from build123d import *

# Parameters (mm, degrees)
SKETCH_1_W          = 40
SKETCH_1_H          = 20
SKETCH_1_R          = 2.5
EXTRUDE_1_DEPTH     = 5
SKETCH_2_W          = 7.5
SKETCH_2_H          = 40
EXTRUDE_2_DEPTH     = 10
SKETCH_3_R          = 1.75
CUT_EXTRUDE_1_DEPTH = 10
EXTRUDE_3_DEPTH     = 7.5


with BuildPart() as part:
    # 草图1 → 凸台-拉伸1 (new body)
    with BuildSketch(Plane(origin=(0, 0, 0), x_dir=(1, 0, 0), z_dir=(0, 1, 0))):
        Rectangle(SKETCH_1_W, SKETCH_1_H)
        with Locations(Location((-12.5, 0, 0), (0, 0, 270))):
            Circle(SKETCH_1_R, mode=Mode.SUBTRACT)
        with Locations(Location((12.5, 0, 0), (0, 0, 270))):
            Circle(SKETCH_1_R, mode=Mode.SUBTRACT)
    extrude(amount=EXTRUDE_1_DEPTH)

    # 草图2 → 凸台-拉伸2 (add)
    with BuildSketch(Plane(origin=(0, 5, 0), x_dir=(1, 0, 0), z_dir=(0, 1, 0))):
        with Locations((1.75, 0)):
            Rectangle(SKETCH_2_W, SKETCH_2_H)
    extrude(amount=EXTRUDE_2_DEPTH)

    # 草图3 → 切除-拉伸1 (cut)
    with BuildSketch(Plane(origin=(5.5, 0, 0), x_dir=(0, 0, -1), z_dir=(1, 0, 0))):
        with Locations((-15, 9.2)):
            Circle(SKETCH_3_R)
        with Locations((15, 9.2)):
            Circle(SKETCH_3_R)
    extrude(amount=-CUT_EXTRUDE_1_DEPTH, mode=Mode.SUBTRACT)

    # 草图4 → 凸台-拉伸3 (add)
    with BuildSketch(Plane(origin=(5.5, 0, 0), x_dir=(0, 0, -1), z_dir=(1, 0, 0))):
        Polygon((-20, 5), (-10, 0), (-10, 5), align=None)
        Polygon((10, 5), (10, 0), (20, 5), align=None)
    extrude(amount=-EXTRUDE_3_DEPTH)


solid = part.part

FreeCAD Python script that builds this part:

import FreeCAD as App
import Part
import Sketcher


def add_polygon(sketch, points):
    """Adds a closed chain of lines whose ends are joined by coincident constraints."""
    first, n = sketch.GeometryCount, len(points)
    for a, b in zip(points, points[1:] + points[:1]):
        sketch.addGeometry(Part.LineSegment(App.Vector(*a, 0), App.Vector(*b, 0)), False)
    for i in range(n):
        sketch.addConstraint(Sketcher.Constraint("Coincident", first + i, 2, first + (i + 1) % n, 1))

doc = App.newDocument("Part")
params = doc.addObject("Spreadsheet::Sheet", "Params")
for row, (alias, value) in enumerate([
    ("sketch1_diameter", "5 mm"),
    ("sketch1_width", "40 mm"),
    ("sketch1_height", "20 mm"),
    ("pad1_length", "5 mm"),
    ("sketch2_height", "40 mm"),
    ("sketch2_width", "7.5 mm"),
    ("pad2_length", "10 mm"),
    ("sketch3_diameter", "3.5 mm"),
    ("pocket1_length", "10 mm"),
    ("sketch4_width", "5 mm"),
    ("sketch4_height", "10 mm"),
    ("pad3_length", "7.5 mm"),
], start=1):
    params.set(f"A{row}", alias)
    params.set(f"B{row}", "=" + value)
    params.setAlias(f"B{row}", alias)

body = doc.addObject("PartDesign::Body", "Body")

# Sketch on XZ plane
sketch1 = body.newObject("Sketcher::SketchObject", "Sketch")
sketch1.AttachmentSupport = (doc.getObject("XZ_Plane"), [""])
sketch1.MapMode = "FlatFace"
add_polygon(sketch1, [(-20, -10), (-20, 10), (20, 10), (20, -10)])  # lines 0-3
sketch1.addGeometry(Part.Circle(App.Vector(-12.5, 0, 0), App.Vector(0, 0, 1), 2.5), False)  # 4
sketch1.addGeometry(Part.Circle(App.Vector(12.5, 0, 0), App.Vector(0, 0, 1), 2.5), False)  # 5
sketch1.addConstraint([
    Sketcher.Constraint("Vertical", 0),
    Sketcher.Constraint("Horizontal", 1),
    Sketcher.Constraint("Vertical", 2),
    Sketcher.Constraint("Horizontal", 3),
    Sketcher.Constraint("Equal", 4, 5),
    Sketcher.Constraint("Symmetric", 4, 3, 5, 3, -1, 1),
    Sketcher.Constraint("Symmetric", 0, 2, 2, 2, -1, 1),
    Sketcher.Constraint("PointOnObject", 4, 3, -1),
    Sketcher.Constraint("Diameter", 4, 5.0),
    Sketcher.Constraint("DistanceX", 1, 1, 1, 2, 40.0),
    Sketcher.Constraint("DistanceY", 0, 1, 0, 2, 20.0),
    Sketcher.Constraint("DistanceX", 4, 3, 5, 3, 25.0),
])
sketch1.setExpression("Constraints[12]", "Params.sketch1_diameter")
sketch1.setExpression("Constraints[13]", "Params.sketch1_width")
sketch1.setExpression("Constraints[14]", "Params.sketch1_height")
pad1 = body.newObject("PartDesign::Pad", "Pad")
pad1.Profile = sketch1
pad1.setExpression("Length", "Params.pad1_length")
pad1.Reversed = True

# Sketch on XZ plane
sketch2 = body.newObject("Sketcher::SketchObject", "Sketch001")
sketch2.AttachmentSupport = (doc.getObject("XZ_Plane"), [""])
sketch2.MapMode = "FlatFace"
sketch2.AttachmentOffset = App.Placement(App.Vector(0, 0, -5), App.Rotation())
add_polygon(sketch2, [(-2, -20), (-2, 20), (6, 20), (6, -20)])  # lines 0-3
sketch2.addConstraint([
    Sketcher.Constraint("Vertical", 0),
    Sketcher.Constraint("Horizontal", 1),
    Sketcher.Constraint("Vertical", 2),
    Sketcher.Constraint("Horizontal", 3),
    Sketcher.Constraint("DistanceY", 0, 1, 0, 2, 40.0),
    Sketcher.Constraint("DistanceX", 1, 1, 1, 2, 7.5),
    Sketcher.Constraint("DistanceX", 0, 2, -1, 1, 2.0),
    Sketcher.Constraint("DistanceY", -1, 1, 0, 2, 20.0),
])
sketch2.setExpression("Constraints[8]", "Params.sketch2_height")
sketch2.setExpression("Constraints[9]", "Params.sketch2_width")
pad2 = body.newObject("PartDesign::Pad", "Pad001")
pad2.Profile = sketch2
pad2.setExpression("Length", "Params.pad2_length")
pad2.Reversed = True

# Sketch on YZ plane
sketch3 = body.newObject("Sketcher::SketchObject", "Sketch002")
sketch3.AttachmentSupport = (doc.getObject("YZ_Plane"), [""])
sketch3.MapMode = "FlatFace"
sketch3.AttachmentOffset = App.Placement(App.Vector(0, 0, 5.5), App.Rotation())
sketch3.addGeometry([
    Part.Circle(App.Vector(9.2, 15, 0), App.Vector(0, 0, 1), 1.8),
    Part.Circle(App.Vector(9.2, -15, 0), App.Vector(0, 0, 1), 1.8),
], False)
sketch3.addConstraint([
    Sketcher.Constraint("Equal", 0, 1),
    Sketcher.Constraint("Symmetric", 0, 3, 1, 3, -1),
    Sketcher.Constraint("Diameter", 0, 3.5),
    Sketcher.Constraint("DistanceY", -1, 1, 0, 3, 15.0),
    Sketcher.Constraint("DistanceX", -1, 1, 0, 3, 9.2),
])
sketch3.setExpression("Constraints[2]", "Params.sketch3_diameter")
pocket1 = body.newObject("PartDesign::Pocket", "Pocket")
pocket1.Profile = sketch3
pocket1.setExpression("Length", "Params.pocket1_length")

# Sketch on YZ plane
sketch4 = body.newObject("Sketcher::SketchObject", "Sketch003")
sketch4.AttachmentSupport = (doc.getObject("YZ_Plane"), [""])
sketch4.MapMode = "FlatFace"
sketch4.AttachmentOffset = App.Placement(App.Vector(0, 0, 5.5), App.Rotation())
add_polygon(sketch4, [(5, 20), (0, 10), (5, 10)])  # lines 0-2
add_polygon(sketch4, [(5, -10), (0, -10), (5, -20)])  # lines 3-5
sketch4.addConstraint([
    Sketcher.Constraint("Horizontal", 1),
    Sketcher.Constraint("Vertical", 2),
    Sketcher.Constraint("Horizontal", 3),
    Sketcher.Constraint("Vertical", 5),
    Sketcher.Constraint("Symmetric", 0, 2, 3, 2, -1, 1),
    Sketcher.Constraint("Symmetric", 2, 2, 4, 2, -1),
    Sketcher.Constraint("PointOnObject", 0, 2, -2),
    Sketcher.Constraint("DistanceX", 1, 1, 1, 2, 5.0),
    Sketcher.Constraint("DistanceY", 2, 1, 2, 2, 10.0),
    Sketcher.Constraint("DistanceY", -1, 1, 0, 2, 10.0),
])
sketch4.setExpression("Constraints[13]", "Params.sketch4_width")
sketch4.setExpression("Constraints[14]", "Params.sketch4_height")
pad3 = body.newObject("PartDesign::Pad", "Pad002")
pad3.Profile = sketch4
pad3.setExpression("Length", "Params.pad3_length")
pad3.Reversed = True

doc.recompute()
